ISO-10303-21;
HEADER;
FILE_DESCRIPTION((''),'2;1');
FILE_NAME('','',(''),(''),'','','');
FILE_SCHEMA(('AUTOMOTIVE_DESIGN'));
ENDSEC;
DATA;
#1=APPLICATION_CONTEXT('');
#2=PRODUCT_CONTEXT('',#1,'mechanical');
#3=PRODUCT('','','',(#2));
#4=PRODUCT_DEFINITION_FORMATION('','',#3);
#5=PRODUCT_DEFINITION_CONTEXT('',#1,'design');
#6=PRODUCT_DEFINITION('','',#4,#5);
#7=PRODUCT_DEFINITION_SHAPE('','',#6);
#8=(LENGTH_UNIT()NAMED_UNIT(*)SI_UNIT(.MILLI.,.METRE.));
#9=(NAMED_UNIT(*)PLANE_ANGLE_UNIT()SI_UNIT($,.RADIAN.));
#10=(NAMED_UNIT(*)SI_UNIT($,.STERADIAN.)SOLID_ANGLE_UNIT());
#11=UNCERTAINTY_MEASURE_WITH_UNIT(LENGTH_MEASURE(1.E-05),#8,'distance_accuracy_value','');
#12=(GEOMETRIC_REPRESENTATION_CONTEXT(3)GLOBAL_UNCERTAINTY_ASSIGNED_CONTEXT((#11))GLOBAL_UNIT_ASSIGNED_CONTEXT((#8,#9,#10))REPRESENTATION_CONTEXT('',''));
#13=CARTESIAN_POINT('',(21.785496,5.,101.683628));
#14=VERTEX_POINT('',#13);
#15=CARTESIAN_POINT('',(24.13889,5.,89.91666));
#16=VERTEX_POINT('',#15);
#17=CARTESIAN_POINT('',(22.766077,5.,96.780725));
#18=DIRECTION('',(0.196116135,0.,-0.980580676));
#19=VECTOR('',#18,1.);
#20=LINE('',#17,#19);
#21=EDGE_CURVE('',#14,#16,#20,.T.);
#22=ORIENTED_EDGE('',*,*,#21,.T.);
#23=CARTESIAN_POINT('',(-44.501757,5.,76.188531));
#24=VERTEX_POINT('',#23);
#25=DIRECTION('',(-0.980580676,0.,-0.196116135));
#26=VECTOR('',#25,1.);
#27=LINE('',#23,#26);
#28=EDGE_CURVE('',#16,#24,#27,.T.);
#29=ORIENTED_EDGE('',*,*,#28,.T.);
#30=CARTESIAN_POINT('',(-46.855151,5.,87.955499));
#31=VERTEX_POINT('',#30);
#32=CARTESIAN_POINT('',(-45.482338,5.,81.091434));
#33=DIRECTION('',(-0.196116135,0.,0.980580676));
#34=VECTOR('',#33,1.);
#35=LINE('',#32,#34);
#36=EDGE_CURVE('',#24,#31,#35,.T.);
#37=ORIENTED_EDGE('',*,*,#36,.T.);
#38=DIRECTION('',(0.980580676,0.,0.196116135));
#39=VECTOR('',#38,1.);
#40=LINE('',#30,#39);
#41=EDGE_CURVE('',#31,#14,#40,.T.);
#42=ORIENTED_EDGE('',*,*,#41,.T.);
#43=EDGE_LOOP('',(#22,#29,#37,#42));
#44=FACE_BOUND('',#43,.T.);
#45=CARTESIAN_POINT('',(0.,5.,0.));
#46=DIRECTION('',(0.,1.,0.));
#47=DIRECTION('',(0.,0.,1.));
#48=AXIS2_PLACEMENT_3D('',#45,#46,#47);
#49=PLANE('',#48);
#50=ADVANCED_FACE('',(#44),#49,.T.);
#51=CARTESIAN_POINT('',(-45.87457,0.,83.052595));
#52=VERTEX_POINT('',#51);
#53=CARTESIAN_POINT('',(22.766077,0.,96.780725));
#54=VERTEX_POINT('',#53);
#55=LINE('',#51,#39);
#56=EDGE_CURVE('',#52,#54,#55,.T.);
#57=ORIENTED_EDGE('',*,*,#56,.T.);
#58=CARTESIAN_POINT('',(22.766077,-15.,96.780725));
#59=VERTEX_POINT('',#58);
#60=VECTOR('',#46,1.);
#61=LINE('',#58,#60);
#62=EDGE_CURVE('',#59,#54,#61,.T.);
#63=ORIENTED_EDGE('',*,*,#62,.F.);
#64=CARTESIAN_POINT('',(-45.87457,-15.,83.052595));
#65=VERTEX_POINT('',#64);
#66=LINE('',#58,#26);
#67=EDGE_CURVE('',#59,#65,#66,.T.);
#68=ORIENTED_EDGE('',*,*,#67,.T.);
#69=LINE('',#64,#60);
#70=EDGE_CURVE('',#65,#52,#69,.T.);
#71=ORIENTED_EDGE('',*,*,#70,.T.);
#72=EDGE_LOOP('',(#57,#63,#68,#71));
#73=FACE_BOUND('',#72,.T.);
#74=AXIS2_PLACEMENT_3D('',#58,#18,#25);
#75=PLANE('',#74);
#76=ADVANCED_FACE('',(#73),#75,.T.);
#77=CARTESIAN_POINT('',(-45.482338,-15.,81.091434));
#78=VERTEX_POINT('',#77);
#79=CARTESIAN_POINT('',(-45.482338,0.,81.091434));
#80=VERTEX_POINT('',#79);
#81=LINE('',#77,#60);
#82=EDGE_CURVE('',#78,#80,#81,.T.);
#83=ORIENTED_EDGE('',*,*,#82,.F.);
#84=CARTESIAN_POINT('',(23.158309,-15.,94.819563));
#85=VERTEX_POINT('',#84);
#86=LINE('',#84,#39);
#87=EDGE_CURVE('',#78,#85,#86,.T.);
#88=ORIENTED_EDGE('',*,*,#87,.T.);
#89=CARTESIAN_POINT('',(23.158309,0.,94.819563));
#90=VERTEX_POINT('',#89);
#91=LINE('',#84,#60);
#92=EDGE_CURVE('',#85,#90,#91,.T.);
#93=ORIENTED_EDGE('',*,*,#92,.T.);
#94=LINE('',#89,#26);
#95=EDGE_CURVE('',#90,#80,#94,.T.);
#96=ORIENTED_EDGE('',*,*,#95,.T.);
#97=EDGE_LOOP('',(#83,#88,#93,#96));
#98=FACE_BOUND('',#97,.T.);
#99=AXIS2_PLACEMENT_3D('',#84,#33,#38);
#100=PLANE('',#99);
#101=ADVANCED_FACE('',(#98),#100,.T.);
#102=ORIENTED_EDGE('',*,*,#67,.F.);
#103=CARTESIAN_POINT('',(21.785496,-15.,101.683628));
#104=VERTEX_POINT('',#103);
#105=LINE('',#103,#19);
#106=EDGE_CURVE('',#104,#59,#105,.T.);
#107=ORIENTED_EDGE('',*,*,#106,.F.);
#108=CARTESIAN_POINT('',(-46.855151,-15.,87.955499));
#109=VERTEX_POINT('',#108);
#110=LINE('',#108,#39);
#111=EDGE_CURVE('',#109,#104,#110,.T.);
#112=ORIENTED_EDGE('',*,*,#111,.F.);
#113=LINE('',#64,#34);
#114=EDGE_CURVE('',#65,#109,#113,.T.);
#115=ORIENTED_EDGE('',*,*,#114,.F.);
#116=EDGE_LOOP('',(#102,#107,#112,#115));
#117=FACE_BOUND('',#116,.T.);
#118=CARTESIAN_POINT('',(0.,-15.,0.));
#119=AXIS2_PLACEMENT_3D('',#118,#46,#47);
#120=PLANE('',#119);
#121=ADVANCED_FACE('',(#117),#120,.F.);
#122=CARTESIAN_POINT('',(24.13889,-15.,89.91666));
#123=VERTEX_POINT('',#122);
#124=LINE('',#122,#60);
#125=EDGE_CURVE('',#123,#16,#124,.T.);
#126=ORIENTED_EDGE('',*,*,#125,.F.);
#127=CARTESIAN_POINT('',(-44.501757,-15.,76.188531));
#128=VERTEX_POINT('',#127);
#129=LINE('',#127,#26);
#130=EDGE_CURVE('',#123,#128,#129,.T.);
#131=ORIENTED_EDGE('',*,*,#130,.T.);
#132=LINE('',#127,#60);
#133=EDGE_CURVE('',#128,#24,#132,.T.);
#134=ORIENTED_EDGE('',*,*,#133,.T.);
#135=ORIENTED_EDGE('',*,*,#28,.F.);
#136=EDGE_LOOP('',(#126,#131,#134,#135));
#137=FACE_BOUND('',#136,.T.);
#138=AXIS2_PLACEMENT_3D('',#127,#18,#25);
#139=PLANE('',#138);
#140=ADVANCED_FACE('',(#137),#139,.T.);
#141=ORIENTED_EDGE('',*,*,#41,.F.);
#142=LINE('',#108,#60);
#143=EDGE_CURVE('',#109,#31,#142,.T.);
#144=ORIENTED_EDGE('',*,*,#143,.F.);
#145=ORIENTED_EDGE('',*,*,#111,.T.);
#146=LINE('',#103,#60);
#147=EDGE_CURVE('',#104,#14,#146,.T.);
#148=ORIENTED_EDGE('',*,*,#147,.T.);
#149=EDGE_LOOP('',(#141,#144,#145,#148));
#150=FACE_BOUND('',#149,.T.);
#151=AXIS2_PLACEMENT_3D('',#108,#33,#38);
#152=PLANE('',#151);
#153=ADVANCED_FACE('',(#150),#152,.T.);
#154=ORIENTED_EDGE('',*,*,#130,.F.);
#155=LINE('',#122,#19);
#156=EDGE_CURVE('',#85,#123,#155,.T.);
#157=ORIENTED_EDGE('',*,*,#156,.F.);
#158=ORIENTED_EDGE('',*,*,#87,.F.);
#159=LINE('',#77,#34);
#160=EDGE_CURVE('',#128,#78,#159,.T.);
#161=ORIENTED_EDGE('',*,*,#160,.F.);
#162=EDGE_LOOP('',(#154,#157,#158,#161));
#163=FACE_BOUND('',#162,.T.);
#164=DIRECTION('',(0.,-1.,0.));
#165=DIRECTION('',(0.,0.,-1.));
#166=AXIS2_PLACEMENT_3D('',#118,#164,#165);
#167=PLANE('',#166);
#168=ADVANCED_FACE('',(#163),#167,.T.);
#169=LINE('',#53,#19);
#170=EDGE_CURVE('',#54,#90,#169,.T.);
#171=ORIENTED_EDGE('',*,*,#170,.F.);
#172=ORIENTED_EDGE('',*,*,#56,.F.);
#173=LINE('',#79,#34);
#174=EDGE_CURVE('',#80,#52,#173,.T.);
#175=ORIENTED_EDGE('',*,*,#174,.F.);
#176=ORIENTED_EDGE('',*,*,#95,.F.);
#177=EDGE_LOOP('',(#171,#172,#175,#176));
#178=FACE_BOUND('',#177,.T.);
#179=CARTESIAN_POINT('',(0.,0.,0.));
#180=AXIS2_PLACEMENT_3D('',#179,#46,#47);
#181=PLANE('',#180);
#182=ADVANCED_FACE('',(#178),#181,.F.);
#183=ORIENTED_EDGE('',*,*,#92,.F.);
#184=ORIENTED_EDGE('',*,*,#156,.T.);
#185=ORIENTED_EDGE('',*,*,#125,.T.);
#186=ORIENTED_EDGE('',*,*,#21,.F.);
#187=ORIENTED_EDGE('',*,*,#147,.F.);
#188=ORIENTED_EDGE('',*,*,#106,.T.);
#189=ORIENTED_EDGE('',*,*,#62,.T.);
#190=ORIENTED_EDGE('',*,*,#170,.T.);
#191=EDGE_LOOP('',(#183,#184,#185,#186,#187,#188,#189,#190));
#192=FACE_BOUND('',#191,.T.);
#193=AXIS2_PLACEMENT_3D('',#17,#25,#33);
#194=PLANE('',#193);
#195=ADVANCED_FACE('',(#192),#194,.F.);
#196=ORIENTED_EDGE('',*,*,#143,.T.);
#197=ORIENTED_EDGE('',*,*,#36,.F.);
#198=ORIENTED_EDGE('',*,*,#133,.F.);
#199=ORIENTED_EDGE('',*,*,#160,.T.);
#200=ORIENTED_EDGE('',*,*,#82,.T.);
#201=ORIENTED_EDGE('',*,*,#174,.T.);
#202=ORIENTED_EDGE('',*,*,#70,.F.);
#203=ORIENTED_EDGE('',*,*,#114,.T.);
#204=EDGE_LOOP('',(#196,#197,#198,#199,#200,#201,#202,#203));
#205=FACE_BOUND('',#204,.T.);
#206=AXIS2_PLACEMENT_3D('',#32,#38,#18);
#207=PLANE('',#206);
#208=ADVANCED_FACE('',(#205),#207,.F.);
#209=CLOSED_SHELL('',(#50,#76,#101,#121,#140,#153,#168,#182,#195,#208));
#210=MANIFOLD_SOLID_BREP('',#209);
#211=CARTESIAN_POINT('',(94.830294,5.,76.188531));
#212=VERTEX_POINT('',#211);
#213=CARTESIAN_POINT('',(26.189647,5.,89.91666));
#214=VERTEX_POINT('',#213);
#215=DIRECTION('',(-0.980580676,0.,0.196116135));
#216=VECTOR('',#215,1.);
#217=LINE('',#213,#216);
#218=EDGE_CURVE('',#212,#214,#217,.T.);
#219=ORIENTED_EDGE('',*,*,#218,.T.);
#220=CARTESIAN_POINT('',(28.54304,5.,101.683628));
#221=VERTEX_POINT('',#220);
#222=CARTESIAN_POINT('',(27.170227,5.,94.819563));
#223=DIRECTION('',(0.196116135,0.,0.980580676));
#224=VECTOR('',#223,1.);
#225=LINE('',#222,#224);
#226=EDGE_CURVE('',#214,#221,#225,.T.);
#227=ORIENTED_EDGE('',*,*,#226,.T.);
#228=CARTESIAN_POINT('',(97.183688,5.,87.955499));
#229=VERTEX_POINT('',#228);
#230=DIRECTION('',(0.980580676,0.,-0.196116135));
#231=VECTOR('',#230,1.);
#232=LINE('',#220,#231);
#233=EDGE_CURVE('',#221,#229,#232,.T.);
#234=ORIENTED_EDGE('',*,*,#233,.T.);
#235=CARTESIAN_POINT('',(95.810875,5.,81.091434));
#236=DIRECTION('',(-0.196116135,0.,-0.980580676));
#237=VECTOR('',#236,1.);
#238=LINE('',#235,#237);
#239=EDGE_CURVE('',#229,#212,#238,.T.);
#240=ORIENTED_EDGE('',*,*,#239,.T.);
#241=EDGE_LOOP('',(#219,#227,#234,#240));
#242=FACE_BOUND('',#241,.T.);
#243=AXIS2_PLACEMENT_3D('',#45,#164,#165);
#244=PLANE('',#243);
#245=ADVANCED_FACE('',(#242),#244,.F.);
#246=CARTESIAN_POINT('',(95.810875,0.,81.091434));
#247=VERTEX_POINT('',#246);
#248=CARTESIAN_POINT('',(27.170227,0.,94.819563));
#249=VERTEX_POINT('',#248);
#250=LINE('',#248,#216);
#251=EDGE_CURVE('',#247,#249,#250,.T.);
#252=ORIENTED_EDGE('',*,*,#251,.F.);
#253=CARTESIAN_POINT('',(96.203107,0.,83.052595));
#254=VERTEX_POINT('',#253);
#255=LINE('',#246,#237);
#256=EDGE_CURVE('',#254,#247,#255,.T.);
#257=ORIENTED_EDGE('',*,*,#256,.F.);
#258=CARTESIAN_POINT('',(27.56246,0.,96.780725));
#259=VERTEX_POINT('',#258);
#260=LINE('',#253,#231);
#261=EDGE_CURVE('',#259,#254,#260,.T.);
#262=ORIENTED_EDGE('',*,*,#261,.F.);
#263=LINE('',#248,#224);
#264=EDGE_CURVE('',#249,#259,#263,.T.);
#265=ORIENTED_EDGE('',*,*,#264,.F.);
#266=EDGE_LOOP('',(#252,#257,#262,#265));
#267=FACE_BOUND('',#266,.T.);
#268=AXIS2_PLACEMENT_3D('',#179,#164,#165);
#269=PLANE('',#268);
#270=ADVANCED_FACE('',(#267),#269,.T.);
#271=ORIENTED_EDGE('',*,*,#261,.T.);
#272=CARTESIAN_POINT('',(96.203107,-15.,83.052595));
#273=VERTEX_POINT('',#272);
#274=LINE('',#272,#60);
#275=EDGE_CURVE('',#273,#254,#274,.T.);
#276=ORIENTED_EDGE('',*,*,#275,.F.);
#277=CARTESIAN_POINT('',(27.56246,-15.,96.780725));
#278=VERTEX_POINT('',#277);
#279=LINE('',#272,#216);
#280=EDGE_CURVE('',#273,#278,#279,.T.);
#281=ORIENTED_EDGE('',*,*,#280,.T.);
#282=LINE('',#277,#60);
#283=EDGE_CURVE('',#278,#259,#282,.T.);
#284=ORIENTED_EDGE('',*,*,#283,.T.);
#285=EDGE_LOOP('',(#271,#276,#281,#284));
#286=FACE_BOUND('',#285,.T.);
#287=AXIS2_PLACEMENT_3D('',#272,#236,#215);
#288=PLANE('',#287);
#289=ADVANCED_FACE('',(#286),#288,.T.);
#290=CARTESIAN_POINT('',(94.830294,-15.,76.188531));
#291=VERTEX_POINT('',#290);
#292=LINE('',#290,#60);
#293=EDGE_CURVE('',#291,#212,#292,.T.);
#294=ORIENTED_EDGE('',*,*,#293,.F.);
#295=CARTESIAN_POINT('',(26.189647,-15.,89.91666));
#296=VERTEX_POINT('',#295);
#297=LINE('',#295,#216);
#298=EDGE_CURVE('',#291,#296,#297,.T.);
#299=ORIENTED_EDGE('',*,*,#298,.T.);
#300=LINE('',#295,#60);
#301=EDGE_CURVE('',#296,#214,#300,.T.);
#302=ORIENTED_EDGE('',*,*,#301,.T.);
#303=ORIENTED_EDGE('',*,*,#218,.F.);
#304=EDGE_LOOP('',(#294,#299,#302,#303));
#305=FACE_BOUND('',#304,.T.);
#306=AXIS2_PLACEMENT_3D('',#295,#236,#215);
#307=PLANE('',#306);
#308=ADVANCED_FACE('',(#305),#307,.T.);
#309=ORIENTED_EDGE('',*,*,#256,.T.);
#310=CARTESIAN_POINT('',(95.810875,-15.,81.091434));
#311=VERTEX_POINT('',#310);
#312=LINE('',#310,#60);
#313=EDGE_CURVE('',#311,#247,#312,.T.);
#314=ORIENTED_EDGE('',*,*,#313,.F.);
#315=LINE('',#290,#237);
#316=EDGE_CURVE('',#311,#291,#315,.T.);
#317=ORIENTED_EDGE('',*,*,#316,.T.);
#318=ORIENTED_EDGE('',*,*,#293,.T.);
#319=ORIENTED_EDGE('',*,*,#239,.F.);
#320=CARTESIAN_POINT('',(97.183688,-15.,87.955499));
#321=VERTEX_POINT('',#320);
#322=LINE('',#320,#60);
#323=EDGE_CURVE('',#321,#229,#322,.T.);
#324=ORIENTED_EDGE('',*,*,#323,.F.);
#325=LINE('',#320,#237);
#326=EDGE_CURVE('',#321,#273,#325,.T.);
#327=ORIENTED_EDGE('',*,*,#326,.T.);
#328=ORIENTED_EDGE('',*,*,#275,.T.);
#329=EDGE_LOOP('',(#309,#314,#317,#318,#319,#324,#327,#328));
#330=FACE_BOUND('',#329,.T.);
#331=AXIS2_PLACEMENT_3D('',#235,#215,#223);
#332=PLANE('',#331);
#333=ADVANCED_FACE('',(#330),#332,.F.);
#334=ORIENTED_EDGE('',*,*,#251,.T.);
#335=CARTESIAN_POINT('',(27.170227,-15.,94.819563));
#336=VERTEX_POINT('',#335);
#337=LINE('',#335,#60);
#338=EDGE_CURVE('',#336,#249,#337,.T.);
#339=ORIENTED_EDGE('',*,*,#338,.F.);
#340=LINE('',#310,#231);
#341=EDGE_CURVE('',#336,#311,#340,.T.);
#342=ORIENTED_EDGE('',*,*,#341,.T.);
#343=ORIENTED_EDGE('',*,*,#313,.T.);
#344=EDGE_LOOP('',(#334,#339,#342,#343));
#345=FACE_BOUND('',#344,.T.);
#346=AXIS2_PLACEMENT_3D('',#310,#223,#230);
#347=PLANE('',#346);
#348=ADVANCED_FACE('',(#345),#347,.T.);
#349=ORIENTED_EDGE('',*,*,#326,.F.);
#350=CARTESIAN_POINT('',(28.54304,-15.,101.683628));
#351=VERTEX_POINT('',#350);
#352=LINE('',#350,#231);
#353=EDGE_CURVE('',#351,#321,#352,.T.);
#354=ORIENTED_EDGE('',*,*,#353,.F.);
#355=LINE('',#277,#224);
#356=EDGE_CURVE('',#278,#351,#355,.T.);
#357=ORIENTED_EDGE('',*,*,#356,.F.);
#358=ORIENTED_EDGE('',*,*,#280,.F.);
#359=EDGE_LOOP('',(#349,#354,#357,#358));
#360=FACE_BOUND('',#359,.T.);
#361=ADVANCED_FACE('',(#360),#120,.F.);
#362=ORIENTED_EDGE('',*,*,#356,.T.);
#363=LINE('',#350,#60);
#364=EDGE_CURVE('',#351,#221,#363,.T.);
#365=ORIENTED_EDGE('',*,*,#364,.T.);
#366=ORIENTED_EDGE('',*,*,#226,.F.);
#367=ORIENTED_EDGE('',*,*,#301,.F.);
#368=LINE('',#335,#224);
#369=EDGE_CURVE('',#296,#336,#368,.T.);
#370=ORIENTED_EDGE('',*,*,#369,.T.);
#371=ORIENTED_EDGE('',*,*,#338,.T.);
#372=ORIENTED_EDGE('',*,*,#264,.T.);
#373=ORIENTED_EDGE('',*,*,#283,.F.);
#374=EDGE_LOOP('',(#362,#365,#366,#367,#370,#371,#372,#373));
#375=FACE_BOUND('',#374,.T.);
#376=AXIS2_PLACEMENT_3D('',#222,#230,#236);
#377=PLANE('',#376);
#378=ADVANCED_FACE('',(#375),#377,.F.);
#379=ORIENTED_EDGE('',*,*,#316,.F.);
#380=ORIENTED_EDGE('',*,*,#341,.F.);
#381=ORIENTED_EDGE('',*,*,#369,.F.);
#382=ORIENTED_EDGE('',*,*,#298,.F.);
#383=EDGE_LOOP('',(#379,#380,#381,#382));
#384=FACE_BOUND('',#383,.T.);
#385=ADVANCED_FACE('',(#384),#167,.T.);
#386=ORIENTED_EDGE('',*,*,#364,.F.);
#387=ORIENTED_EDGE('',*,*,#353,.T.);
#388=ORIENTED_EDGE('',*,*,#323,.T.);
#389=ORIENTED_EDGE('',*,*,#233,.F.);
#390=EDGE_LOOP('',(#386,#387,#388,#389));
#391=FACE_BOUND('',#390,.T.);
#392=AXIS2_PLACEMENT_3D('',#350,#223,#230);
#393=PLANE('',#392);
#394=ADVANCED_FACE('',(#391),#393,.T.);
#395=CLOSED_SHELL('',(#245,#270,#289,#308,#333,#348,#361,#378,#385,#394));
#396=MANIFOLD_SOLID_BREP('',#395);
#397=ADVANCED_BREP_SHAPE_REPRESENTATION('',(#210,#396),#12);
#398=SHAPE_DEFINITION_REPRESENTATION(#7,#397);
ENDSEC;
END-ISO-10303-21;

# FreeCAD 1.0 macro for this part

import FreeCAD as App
import Part
import Sketcher
Q = App.Units.Quantity


def add_polygon(sketch, points):
    """Adds a closed chain of lines whose ends are joined by coincident constraints."""
    first, n = sketch.GeometryCount, len(points)
    for a, b in zip(points, points[1:] + points[:1]):
        sketch.addGeometry(Part.LineSegment(App.Vector(*a, 0), App.Vector(*b, 0)), False)
    for i in range(n):
        sketch.addConstraint(Sketcher.Constraint("Coincident", first + i, 2, first + (i + 1) % n, 1))

doc = App.newDocument("Part")
body = doc.addObject("PartDesign::Body", "Body")

sketch1 = body.newObject("Sketcher::SketchObject", "Sketch")
sketch1.AttachmentSupport = (doc.getObject("XZ_Plane"), [""])
sketch1.MapMode = "FlatFace"
add_polygon(sketch1, [(27.2, 94.8), (27.6, 96.8), (96.2, 83.1), (95.8, 81.1)])
sketch1.addConstraint([
    Sketcher.Constraint("Perpendicular", 0, 1),
    Sketcher.Constraint("Perpendicular", 1, 2),
    Sketcher.Constraint("Perpendicular", 2, 3),
    Sketcher.Constraint("Distance", 0, Q("2 mm")),
    Sketcher.Constraint("Distance", 1, Q("70 mm")),
    Sketcher.Constraint("DistanceX", -1, 1, 0, 2, Q("27.56246 mm")),
    Sketcher.Constraint("DistanceY", 1, 2, 0, 2, Q("13.728129 mm")),
    Sketcher.Constraint("DistanceY", -1, 1, 0, 2, Q("96.780725 mm")),
])
pad1 = body.newObject("PartDesign::Pad", "Pad")
pad1.Profile = sketch1
pad1.Length = 5
pad1.Reversed = True
body2 = doc.addObject("PartDesign::Body", "Body001")

sketch2 = body2.newObject("Sketcher::SketchObject", "Sketch001")
sketch2.AttachmentSupport = (doc.getObject("XZ_Plane001"), [""])
sketch2.MapMode = "FlatFace"
add_polygon(sketch2, [(22.8, 96.8), (23.2, 94.8), (-45.5, 81.1), (-45.9, 83.1)])
sketch2.addConstraint([
    Sketcher.Constraint("Perpendicular", 0, 1),
    Sketcher.Constraint("Perpendicular", 1, 2),
    Sketcher.Constraint("Perpendicular", 2, 3),
    Sketcher.Constraint("Distance", 0, Q("2 mm")),
    Sketcher.Constraint("Distance", 1, Q("70 mm")),
    Sketcher.Constraint("DistanceX", -1, 1, 0, 2, Q("23.158309 mm")),
    Sketcher.Constraint("DistanceX", 1, 2, -1, 1, Q("45.482338 mm")),
    Sketcher.Constraint("DistanceY", -1, 1, 0, 2, Q("94.819563 mm")),
])
pad2 = body2.newObject("PartDesign::Pad", "Pad001")
pad2.Profile = sketch2
pad2.Length = 5
pad2.Reversed = True
body.AllowCompound = True
doc.recompute()

boolean = body.newObject("PartDesign::Boolean", "Boolean")
boolean.Type = "Fuse"
boolean.addObjects([body2])

sketch3 = body.newObject("Sketcher::SketchObject", "Sketch002")
sketch3.AttachmentSupport = (doc.getObject("XZ_Plane"), [""])
sketch3.MapMode = "FlatFace"
sketch3.AttachmentOffset = App.Placement(App.Vector(0, 0, -5), App.Rotation())
add_polygon(sketch3, [(-44.5, 76.2), (-45.5, 81.1), (23.2, 94.8), (24.1, 89.9)])
add_polygon(sketch3, [(21.8, 101.7), (22.8, 96.8), (-45.9, 83.1), (-46.9, 88)])
add_polygon(sketch3, [(26.2, 89.9), (27.2, 94.8), (95.8, 81.1), (94.8, 76.2)])
add_polygon(sketch3, [(97.2, 88), (96.2, 83.1), (27.6, 96.8), (28.5, 101.7)])
sketch3.addConstraint([
    Sketcher.Constraint("Perpendicular", 0, 1),
    Sketcher.Constraint("Perpendicular", 1, 2),
    Sketcher.Constraint("Perpendicular", 2, 3),
    Sketcher.Constraint("Perpendicular", 3, 4),
    Sketcher.Constraint("Perpendicular", 4, 5),
    Sketcher.Constraint("Perpendicular", 5, 6),
    Sketcher.Constraint("Perpendicular", 6, 7),
    Sketcher.Constraint("Perpendicular", 8, 9),
    Sketcher.Constraint("Perpendicular", 9, 10),
    Sketcher.Constraint("Perpendicular", 10, 11),
    Sketcher.Constraint("Perpendicular", 11, 12),
    Sketcher.Constraint("Perpendicular", 12, 13),
    Sketcher.Constraint("Perpendicular", 13, 14),
    Sketcher.Constraint("Perpendicular", 14, 15),
    Sketcher.Constraint("Horizontal", 1, 2, 8, 2),
    Sketcher.Constraint("Horizontal", 0, 2, 9, 2),
    Sketcher.Constraint("Horizontal", 3, 2, 10, 2),
    Sketcher.Constraint("Horizontal", 5, 2, 12, 2),
    Sketcher.Constraint("Horizontal", 4, 2, 13, 2),
    Sketcher.Constraint("Horizontal", 7, 2, 14, 2),
    Sketcher.Constraint("Equal", 2, 4),
    Sketcher.Constraint("Equal", 3, 5),
    Sketcher.Constraint("Equal", 7, 9),
    Sketcher.Constraint("Distance", 0, Q("5 mm")),
    Sketcher.Constraint("Distance", 1, Q("70 mm")),
    Sketcher.Constraint("DistanceY", -1, 1, 6, 2, Q("87.955499 mm")),
    Sketcher.Constraint("DistanceX", 0, 2, -1, 1, Q("45.482338 mm")),
    Sketcher.Constraint("DistanceX", -1, 1, 1, 2, Q("23.158309 mm")),
    Sketcher.Constraint("DistanceY", -1, 1, 2, 2, Q("89.91666 mm")),
    Sketcher.Constraint("DistanceX", 5, 2, -1, 1, Q("45.87457 mm")),
    Sketcher.Constraint("DistanceX", -1, 1, 13, 2, Q("27.56246 mm")),
    Sketcher.Constraint("DistanceX", 1, 2, 8, 2, Q("4.011918 mm")),
])
pad3 = body.newObject("PartDesign::Pad", "Pad002")
pad3.Profile = sketch3
pad3.Length = 20

doc.recompute()
